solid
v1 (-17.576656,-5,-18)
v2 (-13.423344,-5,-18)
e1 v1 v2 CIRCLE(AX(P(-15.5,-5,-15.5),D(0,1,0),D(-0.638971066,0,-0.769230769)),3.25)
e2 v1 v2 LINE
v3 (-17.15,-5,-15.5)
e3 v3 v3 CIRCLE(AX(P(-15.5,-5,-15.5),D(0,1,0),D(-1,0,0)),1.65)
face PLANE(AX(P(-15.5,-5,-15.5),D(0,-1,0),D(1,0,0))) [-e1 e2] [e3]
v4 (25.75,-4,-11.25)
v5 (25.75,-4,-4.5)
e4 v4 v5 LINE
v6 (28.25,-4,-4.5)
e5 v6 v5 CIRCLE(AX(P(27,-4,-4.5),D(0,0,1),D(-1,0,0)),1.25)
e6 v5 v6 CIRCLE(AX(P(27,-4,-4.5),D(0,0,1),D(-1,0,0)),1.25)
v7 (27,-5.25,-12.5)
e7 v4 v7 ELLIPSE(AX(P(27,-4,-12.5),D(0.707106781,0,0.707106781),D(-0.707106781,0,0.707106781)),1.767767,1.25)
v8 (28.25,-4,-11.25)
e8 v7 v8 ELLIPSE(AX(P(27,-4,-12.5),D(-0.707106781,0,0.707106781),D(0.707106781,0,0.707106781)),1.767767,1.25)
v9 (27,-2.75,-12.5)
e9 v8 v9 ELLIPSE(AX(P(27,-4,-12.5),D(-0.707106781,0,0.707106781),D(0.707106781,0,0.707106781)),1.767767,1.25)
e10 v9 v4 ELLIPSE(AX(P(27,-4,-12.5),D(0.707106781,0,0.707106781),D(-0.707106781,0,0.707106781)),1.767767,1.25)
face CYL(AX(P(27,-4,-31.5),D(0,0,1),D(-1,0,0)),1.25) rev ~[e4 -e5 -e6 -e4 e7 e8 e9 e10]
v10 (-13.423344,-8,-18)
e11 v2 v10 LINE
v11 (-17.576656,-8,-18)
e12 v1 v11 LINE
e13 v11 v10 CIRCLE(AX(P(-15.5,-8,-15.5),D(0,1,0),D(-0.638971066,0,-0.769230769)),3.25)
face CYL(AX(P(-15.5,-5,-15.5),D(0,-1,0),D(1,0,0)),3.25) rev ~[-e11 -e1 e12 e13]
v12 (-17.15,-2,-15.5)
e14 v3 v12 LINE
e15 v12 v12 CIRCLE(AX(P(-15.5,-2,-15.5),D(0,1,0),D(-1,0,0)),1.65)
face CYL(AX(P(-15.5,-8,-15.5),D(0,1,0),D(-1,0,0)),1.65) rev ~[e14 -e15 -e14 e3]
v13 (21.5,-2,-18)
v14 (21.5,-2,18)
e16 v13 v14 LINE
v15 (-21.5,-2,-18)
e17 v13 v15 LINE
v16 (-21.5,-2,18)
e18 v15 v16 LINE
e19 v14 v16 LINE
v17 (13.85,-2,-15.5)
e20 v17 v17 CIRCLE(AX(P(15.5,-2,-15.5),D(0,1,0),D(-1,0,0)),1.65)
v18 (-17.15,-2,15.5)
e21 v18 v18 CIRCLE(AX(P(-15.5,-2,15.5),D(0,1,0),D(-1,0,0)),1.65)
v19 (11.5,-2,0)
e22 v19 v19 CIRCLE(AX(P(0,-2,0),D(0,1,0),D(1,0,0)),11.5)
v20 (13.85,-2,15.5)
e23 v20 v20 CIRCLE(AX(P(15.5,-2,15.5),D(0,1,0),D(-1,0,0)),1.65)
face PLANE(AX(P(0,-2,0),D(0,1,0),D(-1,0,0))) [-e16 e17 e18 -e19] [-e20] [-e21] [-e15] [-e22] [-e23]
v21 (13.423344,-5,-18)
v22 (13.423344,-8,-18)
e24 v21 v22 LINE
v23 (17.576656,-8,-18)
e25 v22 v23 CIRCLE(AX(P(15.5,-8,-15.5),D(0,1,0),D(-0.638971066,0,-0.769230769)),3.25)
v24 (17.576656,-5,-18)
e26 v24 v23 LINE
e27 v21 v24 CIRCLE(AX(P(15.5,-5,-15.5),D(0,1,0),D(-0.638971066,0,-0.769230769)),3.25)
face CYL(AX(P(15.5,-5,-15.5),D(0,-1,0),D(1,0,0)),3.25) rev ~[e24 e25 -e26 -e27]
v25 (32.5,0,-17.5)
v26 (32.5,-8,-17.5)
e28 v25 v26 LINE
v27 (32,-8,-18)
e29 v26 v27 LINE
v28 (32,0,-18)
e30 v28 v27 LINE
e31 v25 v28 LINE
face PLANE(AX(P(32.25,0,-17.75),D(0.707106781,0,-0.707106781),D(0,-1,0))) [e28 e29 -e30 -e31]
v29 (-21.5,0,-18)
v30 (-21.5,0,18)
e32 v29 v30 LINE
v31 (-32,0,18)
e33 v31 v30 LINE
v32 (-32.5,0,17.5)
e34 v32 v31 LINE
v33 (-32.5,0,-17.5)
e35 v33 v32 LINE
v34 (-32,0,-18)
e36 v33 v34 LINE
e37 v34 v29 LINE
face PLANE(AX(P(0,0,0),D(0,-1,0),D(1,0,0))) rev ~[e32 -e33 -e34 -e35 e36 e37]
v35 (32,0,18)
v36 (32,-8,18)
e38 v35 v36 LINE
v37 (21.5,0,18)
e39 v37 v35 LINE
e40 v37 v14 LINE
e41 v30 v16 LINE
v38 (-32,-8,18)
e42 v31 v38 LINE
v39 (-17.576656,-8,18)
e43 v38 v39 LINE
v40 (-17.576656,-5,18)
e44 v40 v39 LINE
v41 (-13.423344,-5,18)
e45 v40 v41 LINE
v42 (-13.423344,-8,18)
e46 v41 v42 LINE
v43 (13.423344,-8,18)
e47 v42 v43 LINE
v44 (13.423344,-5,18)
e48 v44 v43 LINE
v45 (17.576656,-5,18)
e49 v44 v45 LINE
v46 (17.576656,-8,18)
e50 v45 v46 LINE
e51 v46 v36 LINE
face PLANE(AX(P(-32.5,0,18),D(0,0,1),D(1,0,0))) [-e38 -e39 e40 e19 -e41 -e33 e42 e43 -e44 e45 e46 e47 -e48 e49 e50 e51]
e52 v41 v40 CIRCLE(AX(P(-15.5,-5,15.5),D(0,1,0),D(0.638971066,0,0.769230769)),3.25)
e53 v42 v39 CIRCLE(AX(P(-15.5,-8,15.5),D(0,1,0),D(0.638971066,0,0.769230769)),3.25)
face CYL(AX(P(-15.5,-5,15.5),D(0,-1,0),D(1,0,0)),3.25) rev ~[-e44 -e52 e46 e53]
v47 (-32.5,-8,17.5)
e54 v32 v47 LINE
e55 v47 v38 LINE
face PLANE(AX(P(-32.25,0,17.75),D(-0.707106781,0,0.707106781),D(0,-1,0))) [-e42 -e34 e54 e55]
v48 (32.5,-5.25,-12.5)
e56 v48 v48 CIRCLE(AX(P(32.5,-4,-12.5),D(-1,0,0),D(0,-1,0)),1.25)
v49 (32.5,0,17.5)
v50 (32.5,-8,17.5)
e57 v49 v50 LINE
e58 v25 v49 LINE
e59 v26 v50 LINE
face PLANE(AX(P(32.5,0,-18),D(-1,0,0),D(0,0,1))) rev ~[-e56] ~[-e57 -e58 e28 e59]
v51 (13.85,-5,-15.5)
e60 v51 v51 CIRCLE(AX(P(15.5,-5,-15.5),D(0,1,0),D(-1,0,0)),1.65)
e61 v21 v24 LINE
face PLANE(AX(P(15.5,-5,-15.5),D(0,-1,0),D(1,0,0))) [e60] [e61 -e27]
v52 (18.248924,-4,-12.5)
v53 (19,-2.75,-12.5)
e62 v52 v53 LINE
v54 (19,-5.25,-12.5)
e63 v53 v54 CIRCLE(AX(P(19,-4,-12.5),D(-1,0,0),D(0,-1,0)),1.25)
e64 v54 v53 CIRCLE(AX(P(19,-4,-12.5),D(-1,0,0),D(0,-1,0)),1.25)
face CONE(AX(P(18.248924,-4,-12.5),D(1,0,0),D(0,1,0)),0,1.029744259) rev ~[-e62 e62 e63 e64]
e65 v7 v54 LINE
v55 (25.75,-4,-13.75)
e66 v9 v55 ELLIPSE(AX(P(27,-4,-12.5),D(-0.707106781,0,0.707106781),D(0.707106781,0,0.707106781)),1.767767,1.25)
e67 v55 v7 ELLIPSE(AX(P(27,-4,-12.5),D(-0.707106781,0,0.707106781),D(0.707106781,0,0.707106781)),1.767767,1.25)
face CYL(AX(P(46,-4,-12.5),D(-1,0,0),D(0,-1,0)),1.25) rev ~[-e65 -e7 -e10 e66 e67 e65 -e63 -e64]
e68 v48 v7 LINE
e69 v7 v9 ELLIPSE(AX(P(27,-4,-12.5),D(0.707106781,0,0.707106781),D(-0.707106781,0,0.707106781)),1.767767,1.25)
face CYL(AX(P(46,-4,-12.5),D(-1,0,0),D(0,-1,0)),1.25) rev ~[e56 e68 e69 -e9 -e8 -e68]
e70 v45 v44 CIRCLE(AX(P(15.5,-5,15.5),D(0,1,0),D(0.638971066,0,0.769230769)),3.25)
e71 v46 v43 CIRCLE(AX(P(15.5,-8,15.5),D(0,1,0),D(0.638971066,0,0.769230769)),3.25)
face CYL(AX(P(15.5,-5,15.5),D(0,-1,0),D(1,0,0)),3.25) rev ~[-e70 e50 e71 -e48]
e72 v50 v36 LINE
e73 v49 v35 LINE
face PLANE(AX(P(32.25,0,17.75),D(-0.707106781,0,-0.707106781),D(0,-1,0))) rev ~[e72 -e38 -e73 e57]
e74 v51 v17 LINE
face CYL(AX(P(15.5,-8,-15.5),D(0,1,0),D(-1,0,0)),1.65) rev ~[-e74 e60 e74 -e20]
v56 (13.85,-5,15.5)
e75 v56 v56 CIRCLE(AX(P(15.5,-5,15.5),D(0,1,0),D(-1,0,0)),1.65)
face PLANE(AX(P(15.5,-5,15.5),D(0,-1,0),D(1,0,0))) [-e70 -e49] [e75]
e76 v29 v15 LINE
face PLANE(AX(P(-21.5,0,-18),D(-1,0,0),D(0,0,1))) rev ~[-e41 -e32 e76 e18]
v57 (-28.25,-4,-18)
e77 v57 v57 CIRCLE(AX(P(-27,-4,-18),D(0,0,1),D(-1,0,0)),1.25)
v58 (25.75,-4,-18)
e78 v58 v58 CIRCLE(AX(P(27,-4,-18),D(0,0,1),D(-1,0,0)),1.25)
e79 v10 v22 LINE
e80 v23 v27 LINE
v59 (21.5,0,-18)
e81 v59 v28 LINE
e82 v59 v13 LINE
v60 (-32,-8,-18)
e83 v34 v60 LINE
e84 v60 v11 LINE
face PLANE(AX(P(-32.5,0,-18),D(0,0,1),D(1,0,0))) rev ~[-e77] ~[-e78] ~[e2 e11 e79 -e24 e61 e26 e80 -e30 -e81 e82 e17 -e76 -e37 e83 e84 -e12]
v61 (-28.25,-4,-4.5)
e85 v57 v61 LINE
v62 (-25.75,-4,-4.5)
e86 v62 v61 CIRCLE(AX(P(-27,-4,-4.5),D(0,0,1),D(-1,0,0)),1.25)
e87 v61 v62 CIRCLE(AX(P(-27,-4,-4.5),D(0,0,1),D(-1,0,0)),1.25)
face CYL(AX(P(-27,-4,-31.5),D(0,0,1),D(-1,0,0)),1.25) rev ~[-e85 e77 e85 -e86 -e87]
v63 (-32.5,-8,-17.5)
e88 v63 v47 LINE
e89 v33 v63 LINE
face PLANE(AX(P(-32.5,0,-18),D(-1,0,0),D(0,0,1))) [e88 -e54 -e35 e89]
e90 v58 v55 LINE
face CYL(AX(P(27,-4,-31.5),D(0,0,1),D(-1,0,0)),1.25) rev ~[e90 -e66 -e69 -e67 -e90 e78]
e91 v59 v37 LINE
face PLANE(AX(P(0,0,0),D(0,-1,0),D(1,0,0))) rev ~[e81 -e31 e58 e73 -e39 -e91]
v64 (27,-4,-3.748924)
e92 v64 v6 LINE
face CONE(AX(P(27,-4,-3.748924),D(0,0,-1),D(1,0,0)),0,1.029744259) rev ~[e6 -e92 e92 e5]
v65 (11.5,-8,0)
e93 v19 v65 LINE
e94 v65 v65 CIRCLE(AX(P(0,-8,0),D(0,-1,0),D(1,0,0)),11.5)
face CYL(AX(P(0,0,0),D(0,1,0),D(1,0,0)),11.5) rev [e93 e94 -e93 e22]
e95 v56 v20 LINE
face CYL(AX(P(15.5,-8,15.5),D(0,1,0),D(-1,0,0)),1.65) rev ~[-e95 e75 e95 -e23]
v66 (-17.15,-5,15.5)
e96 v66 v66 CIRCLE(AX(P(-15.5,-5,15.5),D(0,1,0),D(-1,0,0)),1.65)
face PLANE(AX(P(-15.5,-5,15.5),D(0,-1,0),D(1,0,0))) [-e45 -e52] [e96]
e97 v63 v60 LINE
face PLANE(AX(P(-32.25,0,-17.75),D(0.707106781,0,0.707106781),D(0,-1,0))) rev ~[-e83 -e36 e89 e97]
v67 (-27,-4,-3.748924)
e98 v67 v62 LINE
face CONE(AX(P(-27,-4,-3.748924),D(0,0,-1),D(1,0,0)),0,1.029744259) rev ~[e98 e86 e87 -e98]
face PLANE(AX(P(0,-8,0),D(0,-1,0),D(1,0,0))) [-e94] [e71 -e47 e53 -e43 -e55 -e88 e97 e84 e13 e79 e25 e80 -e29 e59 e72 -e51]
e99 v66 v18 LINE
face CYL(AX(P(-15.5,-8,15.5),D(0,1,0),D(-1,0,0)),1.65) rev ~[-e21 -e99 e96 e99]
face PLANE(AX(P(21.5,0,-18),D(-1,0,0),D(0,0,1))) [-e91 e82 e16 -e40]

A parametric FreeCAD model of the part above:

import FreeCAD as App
import Part
import Sketcher
from FreeCAD import Vector
Q = App.Units.Quantity


def edges_at(feature, points):
    """Names of the edges that pass closest to the given points."""
    edges = feature.Shape.Edges
    near = lambda p: min(range(len(edges)), key=lambda i: edges[i].distToShape(Part.Vertex(*p))[0])
    return sorted({f"Edge{near(p) + 1}" for p in points})

doc = App.newDocument("Part")
body = doc.addObject("PartDesign::Body", "Body")

# Sketch on XZ plane
sketch1 = body.newObject("Sketcher::SketchObject", "Sketch")
sketch1.AttachmentSupport = (doc.getObject("XZ_Plane"), [""])
sketch1.MapMode = "FlatFace"
sketch1.addGeometry([
    Part.LineSegment(Vector(-32.5, 18, 0), Vector(-32.5, -18, 0)),  # 0
    Part.LineSegment(Vector(-32.5, -18, 0), Vector(32.5, -18, 0)),  # 1
    Part.LineSegment(Vector(32.5, -18, 0), Vector(32.5, 18, 0)),  # 2
    Part.LineSegment(Vector(32.5, 18, 0), Vector(-32.5, 18, 0)),  # 3
    Part.Circle(Vector(0, 0, 0), Vector(0, 0, 1), 11.5),  # 4
], False)
sketch1.addConstraint([
    Sketcher.Constraint("Coincident", 0, 2, 1, 1),
    Sketcher.Constraint("Coincident", 1, 2, 2, 1),
    Sketcher.Constraint("Coincident", 2, 2, 3, 1),
    Sketcher.Constraint("Coincident", 3, 2, 0, 1),
    Sketcher.Constraint("Vertical", 0),
    Sketcher.Constraint("Horizontal", 1),
    Sketcher.Constraint("Vertical", 2),
    Sketcher.Constraint("Horizontal", 3),
    Sketcher.Constraint("Coincident", 4, 3, -1, 1),
    Sketcher.Constraint("Symmetric", 0, 2, 2, 2, -1, 1),
    Sketcher.Constraint("Diameter", 4, Q("23 mm")),
    Sketcher.Constraint("DistanceX", 1, 1, 1, 2, Q("65 mm")),
    Sketcher.Constraint("DistanceY", 0, 2, 0, 1, Q("36 mm")),
])
pad1 = body.newObject("PartDesign::Pad", "Pad")
pad1.Profile = sketch1
pad1.Length = 8

# Sketch on XZ plane
sketch2 = body.newObject("Sketcher::SketchObject", "Sketch001")
sketch2.AttachmentSupport = (doc.getObject("XZ_Plane"), [""])
sketch2.MapMode = "FlatFace"
sketch2.AttachmentOffset = App.Placement(Vector(0, 0, 8), App.Rotation())
sketch2.addGeometry([
    Part.Circle(Vector(15.5, 15.5, 0), Vector(0, 0, 1), 1.65),
    Part.Circle(Vector(15.5, -15.5, 0), Vector(0, 0, 1), 1.65),
    Part.Circle(Vector(-15.5, -15.5, 0), Vector(0, 0, 1), 1.65),
    Part.Circle(Vector(-15.5, 15.5, 0), Vector(0, 0, 1), 1.65),
], False)
sketch2.addConstraint([
    Sketcher.Constraint("Equal", 0, 1),
    Sketcher.Constraint("Equal", 1, 2),
    Sketcher.Constraint("Equal", 2, 3),
    Sketcher.Constraint("Symmetric", 0, 3, 2, 3, -1, 1),
    Sketcher.Constraint("Symmetric", 1, 3, 3, 3, -1, 1),
    Sketcher.Constraint("Symmetric", 1, 3, 2, 3, -2),
    Sketcher.Constraint("Diameter", 0, Q("3.3 mm")),
    Sketcher.Constraint("DistanceY", 1, 3, 0, 3, Q("31 mm")),
    Sketcher.Constraint("DistanceX", 2, 3, 1, 3, Q("31 mm")),
])
doc.recompute()
hole = body.newObject("PartDesign::Hole", "Hole")
hole.Profile = sketch2
hole.ThreadType = "None"
hole.Diameter = 3.3
hole.DepthType = "ThroughAll"
hole.HoleCutType = "Counterbore"
hole.HoleCutDiameter = 6.5
hole.HoleCutDepth = 3
doc.recompute()

chamfer = body.newObject("PartDesign::Chamfer", "Chamfer")
chamfer.Base = (hole, edges_at(hole, [
    (-32.5, -4, 18),
    (32.5, -4, 18),
    (32.5, -4, -18),
    (-32.5, -4, -18),
]))
chamfer.Size = 0.5

# Sketch on XY plane
sketch3 = body.newObject("Sketcher::SketchObject", "Sketch002")
sketch3.AttachmentSupport = (doc.getObject("XY_Plane"), [""])
sketch3.MapMode = "FlatFace"
sketch3.AttachmentOffset = App.Placement(Vector(0, 0, -18), App.Rotation())
sketch3.addGeometry([
    Part.Circle(Vector(27, -4, 0), Vector(0, 0, 1), 1.25),
    Part.Circle(Vector(-27, -4, 0), Vector(0, 0, 1), 1.25),
], False)
sketch3.addConstraint([
    Sketcher.Constraint("Equal", 0, 1),
    Sketcher.Constraint("Symmetric", 0, 3, 1, 3, -2),
    Sketcher.Constraint("Diameter", 0, Q("2.5 mm")),
    Sketcher.Constraint("DistanceX", -1, 1, 0, 3, Q("27 mm")),
    Sketcher.Constraint("DistanceY", 0, 3, -1, 1, Q("4 mm")),
])
doc.recompute()
hole2 = body.newObject("PartDesign::Hole", "Hole001")
hole2.Profile = sketch3
hole2.ThreadType = "None"
hole2.Diameter = 2.5
hole2.DepthType = "Dimension"
hole2.Depth = 13.5
hole2.DrillPoint = "Angled"
hole2.DrillPointAngle = 118
hole2.Reversed = True

# Sketch on XZ plane
sketch4 = body.newObject("Sketcher::SketchObject", "Sketch003")
sketch4.AttachmentSupport = (doc.getObject("XZ_Plane"), [""])
sketch4.MapMode = "FlatFace"
sketch4.addGeometry([
    Part.LineSegment(Vector(21.5, 18, 0), Vector(21.5, -18, 0)),  # 0
    Part.LineSegment(Vector(21.5, -18, 0), Vector(-21.5, -18, 0)),  # 1
    Part.LineSegment(Vector(-21.5, -18, 0), Vector(-21.5, 18, 0)),  # 2
    Part.LineSegment(Vector(-21.5, 18, 0), Vector(21.5, 18, 0)),  # 3
    Part.Circle(Vector(15.5, -15.5, 0), Vector(0, 0, 1), 1.65),  # 4
    Part.Circle(Vector(-15.5, -15.5, 0), Vector(0, 0, 1), 1.65),  # 5
    Part.Circle(Vector(15.5, 15.5, 0), Vector(0, 0, 1), 1.65),  # 6
    Part.Circle(Vector(0, 0, 0), Vector(0, 0, 1), 11.5),  # 7
    Part.Circle(Vector(-15.5, 15.5, 0), Vector(0, 0, 1), 1.65),  # 8
], False)
sketch4.addConstraint([
    Sketcher.Constraint("Coincident", 0, 2, 1, 1),
    Sketcher.Constraint("Coincident", 1, 2, 2, 1),
    Sketcher.Constraint("Coincident", 2, 2, 3, 1),
    Sketcher.Constraint("Coincident", 3, 2, 0, 1),
    Sketcher.Constraint("Vertical", 0),
    Sketcher.Constraint("Horizontal", 1),
    Sketcher.Constraint("Vertical", 2),
    Sketcher.Constraint("Horizontal", 3),
    Sketcher.Constraint("Coincident", 7, 3, -1, 1),
    Sketcher.Constraint("Equal", 4, 5),
    Sketcher.Constraint("Equal", 5, 6),
    Sketcher.Constraint("Equal", 6, 8),
    Sketcher.Constraint("Symmetric", 5, 3, 6, 3, -1, 1),
    Sketcher.Constraint("Symmetric", 4, 3, 8, 3, -1, 1),
    Sketcher.Constraint("Symmetric", 0, 2, 2, 2, -1, 1),
    Sketcher.Constraint("Symmetric", 4, 3, 5, 3, -2),
    Sketcher.Constraint("Diameter", 7, Q("23 mm")),
    Sketcher.Constraint("Diameter", 4, Q("3.3 mm")),
    Sketcher.Constraint("DistanceX", 1, 2, 1, 1, Q("43 mm")),
    Sketcher.Constraint("DistanceY", 0, 2, 0, 1, Q("36 mm")),
    Sketcher.Constraint("DistanceX", 5, 3, 4, 3, Q("31 mm")),
    Sketcher.Constraint("DistanceY", 4, 3, 6, 3, Q("31 mm")),
])
pocket1 = body.newObject("PartDesign::Pocket", "Pocket")
pocket1.Profile = sketch4
pocket1.Length = 2
pocket1.Reversed = True

# Sketch on YZ plane
sketch5 = body.newObject("Sketcher::SketchObject", "Sketch004")
sketch5.AttachmentSupport = (doc.getObject("YZ_Plane"), [""])
sketch5.MapMode = "FlatFace"
sketch5.AttachmentOffset = App.Placement(Vector(0, 0, 32.5), App.Rotation())
sketch5.addGeometry(Part.Circle(Vector(-4, -12.5, 0), Vector(0, 0, 1), 1.25), False)
sketch5.addConstraint([
    Sketcher.Constraint("Diameter", 0, Q("2.5 mm")),
    Sketcher.Constraint("DistanceX", 0, 3, -1, 1, Q("4 mm")),
    Sketcher.Constraint("DistanceY", 0, 3, -1, 1, Q("12.5 mm")),
])
doc.recompute()
hole3 = body.newObject("PartDesign::Hole", "Hole002")
hole3.Profile = sketch5
hole3.ThreadType = "None"
hole3.Diameter = 2.5
hole3.DepthType = "Dimension"
hole3.Depth = 13.5
hole3.DrillPoint = "Angled"
hole3.DrillPointAngle = 118

doc.recompute()
